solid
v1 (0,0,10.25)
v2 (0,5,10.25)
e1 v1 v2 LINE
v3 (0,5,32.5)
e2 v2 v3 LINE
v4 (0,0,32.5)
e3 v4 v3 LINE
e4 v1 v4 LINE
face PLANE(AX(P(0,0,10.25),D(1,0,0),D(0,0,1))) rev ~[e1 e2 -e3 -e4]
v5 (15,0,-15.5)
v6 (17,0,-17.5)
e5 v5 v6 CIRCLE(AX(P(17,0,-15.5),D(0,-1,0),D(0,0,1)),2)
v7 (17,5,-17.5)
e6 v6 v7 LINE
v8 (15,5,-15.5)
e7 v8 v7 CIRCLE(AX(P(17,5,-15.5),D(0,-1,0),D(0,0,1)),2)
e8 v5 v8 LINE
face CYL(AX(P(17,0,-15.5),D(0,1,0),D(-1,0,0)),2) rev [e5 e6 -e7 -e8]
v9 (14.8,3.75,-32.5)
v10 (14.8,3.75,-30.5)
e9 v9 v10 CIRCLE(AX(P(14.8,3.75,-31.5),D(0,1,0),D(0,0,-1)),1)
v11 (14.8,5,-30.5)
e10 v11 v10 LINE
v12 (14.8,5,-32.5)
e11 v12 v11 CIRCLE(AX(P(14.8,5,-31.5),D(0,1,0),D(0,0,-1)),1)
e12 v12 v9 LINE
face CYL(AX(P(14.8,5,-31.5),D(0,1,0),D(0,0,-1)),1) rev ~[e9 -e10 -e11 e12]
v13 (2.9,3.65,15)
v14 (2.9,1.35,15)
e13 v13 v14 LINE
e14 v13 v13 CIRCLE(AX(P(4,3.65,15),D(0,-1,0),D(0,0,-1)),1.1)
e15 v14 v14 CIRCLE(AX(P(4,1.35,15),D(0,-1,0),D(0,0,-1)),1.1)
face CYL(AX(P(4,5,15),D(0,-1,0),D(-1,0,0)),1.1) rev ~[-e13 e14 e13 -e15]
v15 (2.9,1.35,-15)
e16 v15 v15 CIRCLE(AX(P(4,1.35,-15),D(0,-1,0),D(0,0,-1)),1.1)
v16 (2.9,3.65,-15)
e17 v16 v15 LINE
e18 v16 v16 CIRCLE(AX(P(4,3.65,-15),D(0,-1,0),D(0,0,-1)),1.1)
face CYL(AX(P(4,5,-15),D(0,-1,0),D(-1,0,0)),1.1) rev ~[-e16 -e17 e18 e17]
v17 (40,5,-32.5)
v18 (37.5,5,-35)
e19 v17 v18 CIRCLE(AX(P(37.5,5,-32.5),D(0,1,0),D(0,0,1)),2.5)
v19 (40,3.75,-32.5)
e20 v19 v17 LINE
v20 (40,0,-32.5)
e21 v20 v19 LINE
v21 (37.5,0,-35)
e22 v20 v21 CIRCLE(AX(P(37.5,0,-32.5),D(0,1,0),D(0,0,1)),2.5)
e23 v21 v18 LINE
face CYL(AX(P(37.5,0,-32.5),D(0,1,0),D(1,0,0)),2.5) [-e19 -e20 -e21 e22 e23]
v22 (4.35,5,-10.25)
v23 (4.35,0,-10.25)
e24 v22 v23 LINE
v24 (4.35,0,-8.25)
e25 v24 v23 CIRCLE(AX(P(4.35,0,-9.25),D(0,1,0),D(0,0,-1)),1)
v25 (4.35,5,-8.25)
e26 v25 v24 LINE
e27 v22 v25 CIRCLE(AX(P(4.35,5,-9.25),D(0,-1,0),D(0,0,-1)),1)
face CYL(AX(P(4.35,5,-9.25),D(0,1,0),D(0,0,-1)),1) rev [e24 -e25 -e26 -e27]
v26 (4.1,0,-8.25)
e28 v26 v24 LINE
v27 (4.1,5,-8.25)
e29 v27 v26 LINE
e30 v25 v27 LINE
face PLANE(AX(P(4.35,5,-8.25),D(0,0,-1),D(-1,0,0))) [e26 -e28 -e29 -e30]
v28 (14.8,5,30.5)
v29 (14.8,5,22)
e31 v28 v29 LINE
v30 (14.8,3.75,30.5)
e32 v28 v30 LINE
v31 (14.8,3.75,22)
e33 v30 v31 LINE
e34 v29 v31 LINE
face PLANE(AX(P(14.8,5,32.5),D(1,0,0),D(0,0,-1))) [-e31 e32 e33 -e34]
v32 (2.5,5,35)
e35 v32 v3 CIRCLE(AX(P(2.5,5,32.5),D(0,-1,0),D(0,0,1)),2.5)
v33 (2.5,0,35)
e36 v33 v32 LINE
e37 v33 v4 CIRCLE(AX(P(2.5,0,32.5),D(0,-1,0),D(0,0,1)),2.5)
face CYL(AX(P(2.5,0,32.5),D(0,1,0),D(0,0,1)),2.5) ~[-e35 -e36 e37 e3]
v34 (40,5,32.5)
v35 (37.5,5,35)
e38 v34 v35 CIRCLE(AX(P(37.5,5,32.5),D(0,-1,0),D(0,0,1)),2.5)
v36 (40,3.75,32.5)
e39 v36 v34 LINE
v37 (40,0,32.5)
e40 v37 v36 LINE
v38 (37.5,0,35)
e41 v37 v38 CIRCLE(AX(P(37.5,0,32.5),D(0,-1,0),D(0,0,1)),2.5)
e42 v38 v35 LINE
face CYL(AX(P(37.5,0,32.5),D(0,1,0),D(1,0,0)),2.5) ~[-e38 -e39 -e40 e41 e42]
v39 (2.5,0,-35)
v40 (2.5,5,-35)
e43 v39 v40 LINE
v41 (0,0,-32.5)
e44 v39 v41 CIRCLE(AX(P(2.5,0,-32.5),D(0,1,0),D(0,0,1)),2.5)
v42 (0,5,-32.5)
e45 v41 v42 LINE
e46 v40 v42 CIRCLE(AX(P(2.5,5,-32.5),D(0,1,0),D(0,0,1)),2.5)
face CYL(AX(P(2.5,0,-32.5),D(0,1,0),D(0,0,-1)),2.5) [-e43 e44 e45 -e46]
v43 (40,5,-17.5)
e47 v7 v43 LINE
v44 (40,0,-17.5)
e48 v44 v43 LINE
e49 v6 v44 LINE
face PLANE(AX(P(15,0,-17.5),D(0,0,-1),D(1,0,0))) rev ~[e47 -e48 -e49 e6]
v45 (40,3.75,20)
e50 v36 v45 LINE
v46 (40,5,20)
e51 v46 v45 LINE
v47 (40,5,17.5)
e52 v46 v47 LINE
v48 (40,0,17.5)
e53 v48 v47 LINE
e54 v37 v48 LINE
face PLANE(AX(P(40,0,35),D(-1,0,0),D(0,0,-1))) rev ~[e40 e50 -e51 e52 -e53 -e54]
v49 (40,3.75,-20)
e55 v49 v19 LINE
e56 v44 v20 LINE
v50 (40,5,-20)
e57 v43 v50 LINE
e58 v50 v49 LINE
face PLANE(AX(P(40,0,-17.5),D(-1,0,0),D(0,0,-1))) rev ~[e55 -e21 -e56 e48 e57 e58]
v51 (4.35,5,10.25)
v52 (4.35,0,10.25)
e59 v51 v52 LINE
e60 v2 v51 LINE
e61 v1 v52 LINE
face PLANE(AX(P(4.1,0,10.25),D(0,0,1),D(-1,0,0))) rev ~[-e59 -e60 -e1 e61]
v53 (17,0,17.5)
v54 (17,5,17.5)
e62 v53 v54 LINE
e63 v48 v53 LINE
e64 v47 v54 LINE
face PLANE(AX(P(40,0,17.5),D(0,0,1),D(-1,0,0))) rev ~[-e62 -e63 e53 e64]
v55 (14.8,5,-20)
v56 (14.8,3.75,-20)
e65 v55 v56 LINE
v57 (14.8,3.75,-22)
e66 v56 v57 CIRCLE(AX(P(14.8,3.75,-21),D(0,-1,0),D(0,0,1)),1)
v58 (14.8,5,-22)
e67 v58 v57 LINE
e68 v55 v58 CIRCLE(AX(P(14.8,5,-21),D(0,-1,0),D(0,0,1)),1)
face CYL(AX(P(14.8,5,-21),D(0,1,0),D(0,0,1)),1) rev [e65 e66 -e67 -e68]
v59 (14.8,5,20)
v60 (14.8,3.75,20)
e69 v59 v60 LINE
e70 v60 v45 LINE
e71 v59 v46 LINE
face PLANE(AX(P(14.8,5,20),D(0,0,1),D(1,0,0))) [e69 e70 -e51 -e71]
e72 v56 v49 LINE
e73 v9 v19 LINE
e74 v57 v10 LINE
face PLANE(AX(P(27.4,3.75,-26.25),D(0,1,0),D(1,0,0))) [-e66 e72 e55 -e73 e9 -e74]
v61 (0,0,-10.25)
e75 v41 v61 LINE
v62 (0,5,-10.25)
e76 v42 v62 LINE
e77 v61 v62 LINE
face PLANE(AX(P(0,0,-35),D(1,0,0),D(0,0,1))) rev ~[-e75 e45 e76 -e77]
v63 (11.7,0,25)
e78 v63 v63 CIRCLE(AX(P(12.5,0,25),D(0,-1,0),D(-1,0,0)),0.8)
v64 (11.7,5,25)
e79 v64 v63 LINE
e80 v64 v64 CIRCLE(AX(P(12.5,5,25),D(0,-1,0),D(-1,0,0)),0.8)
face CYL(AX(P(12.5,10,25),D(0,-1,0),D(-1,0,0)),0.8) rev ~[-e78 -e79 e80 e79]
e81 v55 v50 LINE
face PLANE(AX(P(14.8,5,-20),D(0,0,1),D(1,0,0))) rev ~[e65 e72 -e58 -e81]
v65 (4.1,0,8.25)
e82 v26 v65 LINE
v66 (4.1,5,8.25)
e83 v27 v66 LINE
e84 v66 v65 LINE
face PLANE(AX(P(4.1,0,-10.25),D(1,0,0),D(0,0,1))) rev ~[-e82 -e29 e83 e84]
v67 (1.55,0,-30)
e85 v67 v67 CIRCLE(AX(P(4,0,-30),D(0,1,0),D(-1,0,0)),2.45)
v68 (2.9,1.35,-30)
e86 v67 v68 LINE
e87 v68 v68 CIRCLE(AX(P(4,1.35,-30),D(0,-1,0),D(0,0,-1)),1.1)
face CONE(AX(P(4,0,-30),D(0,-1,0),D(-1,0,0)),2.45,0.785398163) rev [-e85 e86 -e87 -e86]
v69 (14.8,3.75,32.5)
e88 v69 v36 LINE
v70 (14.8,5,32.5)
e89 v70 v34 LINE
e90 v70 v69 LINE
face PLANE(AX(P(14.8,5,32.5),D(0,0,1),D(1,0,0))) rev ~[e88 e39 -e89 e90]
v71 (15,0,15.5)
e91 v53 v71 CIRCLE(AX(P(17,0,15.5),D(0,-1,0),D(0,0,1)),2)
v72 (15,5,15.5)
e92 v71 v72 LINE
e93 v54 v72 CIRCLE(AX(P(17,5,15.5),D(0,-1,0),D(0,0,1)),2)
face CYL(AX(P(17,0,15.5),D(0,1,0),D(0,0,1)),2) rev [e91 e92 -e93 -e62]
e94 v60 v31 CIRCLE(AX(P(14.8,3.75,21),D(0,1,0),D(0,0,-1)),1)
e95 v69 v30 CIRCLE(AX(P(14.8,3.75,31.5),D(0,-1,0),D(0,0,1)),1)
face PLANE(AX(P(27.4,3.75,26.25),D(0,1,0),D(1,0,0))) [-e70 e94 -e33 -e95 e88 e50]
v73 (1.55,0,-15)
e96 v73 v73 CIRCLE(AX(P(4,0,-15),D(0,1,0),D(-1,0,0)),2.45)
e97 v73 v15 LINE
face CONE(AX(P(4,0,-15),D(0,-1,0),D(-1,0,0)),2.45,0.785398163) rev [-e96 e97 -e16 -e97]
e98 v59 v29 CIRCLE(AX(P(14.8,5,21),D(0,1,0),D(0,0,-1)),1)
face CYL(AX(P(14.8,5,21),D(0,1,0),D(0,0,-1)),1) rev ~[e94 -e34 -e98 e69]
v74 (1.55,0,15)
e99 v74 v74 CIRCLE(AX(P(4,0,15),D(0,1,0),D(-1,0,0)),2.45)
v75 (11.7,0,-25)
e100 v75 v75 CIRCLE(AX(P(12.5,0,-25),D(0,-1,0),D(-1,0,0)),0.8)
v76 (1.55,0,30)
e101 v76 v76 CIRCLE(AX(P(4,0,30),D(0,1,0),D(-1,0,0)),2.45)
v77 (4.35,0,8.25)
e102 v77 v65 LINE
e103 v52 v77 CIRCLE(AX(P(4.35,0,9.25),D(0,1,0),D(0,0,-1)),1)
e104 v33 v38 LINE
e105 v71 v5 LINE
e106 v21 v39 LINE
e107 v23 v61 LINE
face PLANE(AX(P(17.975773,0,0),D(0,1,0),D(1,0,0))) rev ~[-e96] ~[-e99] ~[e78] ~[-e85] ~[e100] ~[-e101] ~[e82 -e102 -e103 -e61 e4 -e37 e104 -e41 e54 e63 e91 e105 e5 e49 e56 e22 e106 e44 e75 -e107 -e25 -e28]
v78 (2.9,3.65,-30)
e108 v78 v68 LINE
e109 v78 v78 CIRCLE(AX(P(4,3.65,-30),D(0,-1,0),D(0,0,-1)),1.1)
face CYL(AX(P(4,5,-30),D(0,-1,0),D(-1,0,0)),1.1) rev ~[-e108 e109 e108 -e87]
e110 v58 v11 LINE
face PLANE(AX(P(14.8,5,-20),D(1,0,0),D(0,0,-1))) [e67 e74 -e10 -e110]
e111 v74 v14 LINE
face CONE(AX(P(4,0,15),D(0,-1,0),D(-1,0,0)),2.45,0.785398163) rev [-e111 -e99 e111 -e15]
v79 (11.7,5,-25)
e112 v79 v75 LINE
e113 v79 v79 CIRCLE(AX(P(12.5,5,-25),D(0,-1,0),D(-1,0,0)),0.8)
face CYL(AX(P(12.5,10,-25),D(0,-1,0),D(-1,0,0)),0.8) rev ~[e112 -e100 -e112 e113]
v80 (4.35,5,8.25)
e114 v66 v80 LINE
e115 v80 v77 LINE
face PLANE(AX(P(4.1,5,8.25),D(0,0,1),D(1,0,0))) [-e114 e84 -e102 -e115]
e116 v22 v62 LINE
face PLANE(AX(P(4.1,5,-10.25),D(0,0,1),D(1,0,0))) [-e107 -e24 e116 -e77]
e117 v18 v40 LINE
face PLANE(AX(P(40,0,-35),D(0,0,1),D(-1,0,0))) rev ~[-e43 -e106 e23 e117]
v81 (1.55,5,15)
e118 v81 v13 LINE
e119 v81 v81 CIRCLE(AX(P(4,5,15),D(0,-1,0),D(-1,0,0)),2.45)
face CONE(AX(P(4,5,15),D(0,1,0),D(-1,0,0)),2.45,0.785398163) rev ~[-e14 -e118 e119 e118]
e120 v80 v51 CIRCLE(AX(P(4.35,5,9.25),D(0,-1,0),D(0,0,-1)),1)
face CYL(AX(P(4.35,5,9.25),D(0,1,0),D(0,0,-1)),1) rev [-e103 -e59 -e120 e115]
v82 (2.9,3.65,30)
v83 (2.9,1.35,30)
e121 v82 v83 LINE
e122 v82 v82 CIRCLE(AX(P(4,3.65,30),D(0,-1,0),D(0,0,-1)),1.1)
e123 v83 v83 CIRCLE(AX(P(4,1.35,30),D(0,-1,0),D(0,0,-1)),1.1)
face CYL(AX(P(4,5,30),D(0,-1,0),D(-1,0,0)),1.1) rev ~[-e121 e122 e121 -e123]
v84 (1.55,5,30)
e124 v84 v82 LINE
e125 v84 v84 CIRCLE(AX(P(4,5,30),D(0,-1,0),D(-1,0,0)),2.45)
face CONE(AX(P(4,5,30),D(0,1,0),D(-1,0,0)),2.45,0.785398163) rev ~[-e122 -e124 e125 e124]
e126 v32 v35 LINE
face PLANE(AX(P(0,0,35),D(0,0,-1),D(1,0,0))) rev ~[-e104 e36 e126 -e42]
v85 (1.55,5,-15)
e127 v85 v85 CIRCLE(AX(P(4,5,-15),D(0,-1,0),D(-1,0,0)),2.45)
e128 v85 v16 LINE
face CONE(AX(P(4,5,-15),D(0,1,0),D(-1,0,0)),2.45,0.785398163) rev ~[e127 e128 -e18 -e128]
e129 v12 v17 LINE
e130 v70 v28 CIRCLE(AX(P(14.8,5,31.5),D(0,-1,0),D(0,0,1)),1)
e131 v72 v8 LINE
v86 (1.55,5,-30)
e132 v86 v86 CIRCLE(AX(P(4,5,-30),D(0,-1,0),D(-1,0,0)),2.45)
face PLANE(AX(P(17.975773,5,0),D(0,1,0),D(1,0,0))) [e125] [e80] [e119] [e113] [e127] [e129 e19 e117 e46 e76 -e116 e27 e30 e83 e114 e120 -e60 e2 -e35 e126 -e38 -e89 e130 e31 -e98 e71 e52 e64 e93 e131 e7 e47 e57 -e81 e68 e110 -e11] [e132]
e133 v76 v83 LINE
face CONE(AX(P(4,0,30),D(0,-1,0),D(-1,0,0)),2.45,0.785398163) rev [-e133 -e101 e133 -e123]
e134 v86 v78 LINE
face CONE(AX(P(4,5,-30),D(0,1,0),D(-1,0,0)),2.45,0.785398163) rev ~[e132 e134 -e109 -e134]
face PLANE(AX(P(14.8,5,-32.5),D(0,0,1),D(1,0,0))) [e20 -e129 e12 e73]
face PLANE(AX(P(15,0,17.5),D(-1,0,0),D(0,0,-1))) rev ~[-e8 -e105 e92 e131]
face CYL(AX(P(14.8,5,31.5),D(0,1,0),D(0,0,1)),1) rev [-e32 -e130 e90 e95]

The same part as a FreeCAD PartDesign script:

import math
import FreeCAD as App
import Part
import Sketcher

V = App.Vector


def edges_at(feature, points):
    """Names of the edges that pass closest to the given points."""
    edges = feature.Shape.Edges
    near = lambda p: min(range(len(edges)), key=lambda i: edges[i].distToShape(Part.Vertex(*p))[0])
    return sorted({f"Edge{near(p) + 1}" for p in points})


def add_polygon(sketch, points):
    """Adds a closed chain of lines whose ends are joined by coincident constraints."""
    first, n = sketch.GeometryCount, len(points)
    for a, b in zip(points, points[1:] + points[:1]):
        sketch.addGeometry(Part.LineSegment(App.Vector(*a, 0), App.Vector(*b, 0)), False)
    for i in range(n):
        sketch.addConstraint(Sketcher.Constraint("Coincident", first + i, 2, first + (i + 1) % n, 1))

doc = App.newDocument("Part")
body = doc.addObject("PartDesign::Body", "Body")

# Sketch on XZ plane
sketch1 = body.newObject("Sketcher::SketchObject", "Sketch")
sketch1.AttachmentSupport = (doc.getObject("XZ_Plane"), [""])
sketch1.MapMode = "FlatFace"
add_polygon(sketch1, [(0, -35), (0, -10.25), (4.1, -10.25), (4.1, 10.25), (0, 10.25), (0, 35), (40, 35), (40, 17.5), (15, 17.5), (15, -17.5), (40, -17.5), (40, -35)])  # lines 0-11
sketch1.addConstraint([
    Sketcher.Constraint("Vertical", 0),
    Sketcher.Constraint("Horizontal", 1),
    Sketcher.Constraint("Vertical", 2),
    Sketcher.Constraint("Horizontal", 3),
    Sketcher.Constraint("Vertical", 4),
    Sketcher.Constraint("Horizontal", 5),
    Sketcher.Constraint("Vertical", 6),
    Sketcher.Constraint("Horizontal", 7),
    Sketcher.Constraint("Vertical", 8),
    Sketcher.Constraint("Horizontal", 9),
    Sketcher.Constraint("Vertical", 10),
    Sketcher.Constraint("Horizontal", 11),
    Sketcher.Constraint("Symmetric", 0, 2, 3, 2, -1, 1),
    Sketcher.Constraint("Symmetric", 6, 2, 9, 2, -1),
    Sketcher.Constraint("Symmetric", 4, 2, 11, 2, -1),
    Sketcher.Constraint("DistanceX", 5, 1, 5, 2, 40.0),
    Sketcher.Constraint("DistanceX", 7, 2, 7, 1, 25.0),
    Sketcher.Constraint("DistanceY", 8, 2, 8, 1, 35.0),
    Sketcher.Constraint("DistanceX", 1, 1, 1, 2, 4.1),
    Sketcher.Constraint("DistanceY", 2, 1, 2, 2, 20.5),
    Sketcher.Constraint("DistanceY", 6, 2, 6, 1, 17.5),
])
pad1 = body.newObject("PartDesign::Pad", "Pad")
pad1.Profile = sketch1
pad1.Length = 5
pad1.Reversed = True
doc.recompute()

fillet = body.newObject("PartDesign::Fillet", "Fillet")
fillet.Base = (pad1, edges_at(pad1, [(15, 2.5, -17.5), (15, 2.5, 17.5)]))
fillet.Radius = 2
doc.recompute()

fillet2 = body.newObject("PartDesign::Fillet", "Fillet001")
fillet2.Base = (fillet, edges_at(fillet, [
    (0, 2.5, -35),
    (40, 2.5, -35),
    (40, 2.5, 35),
    (0, 2.5, 35),
]))
fillet2.Radius = 2.5

# Sketch on XZ plane
sketch2 = body.newObject("Sketcher::SketchObject", "Sketch001")
sketch2.AttachmentSupport = (doc.getObject("XZ_Plane"), [""])
sketch2.MapMode = "FlatFace"
sketch2.AttachmentOffset = App.Placement(V(0, 0, -5), App.Rotation())
sketch2.addGeometry([
    Part.LineSegment(V(4.35, -10.25, 0), V(4.1, -10.25, 0)),
    Part.LineSegment(V(4.1, -10.25, 0), V(4.1, -8.25, 0)),
    Part.LineSegment(V(4.1, -8.25, 0), V(4.35, -8.25, 0)),
    Part.ArcOfCircle(Part.Circle(V(4.35, -9.25, 0), V(0, 0, 1), 1), math.radians(-90), math.radians(90)),
], False)
sketch2.addConstraint([
    Sketcher.Constraint("Coincident", 0, 2, 1, 1),
    Sketcher.Constraint("Coincident", 1, 2, 2, 1),
    Sketcher.Constraint("Tangent", 2, 2, 3, 2),
    Sketcher.Constraint("Tangent", 3, 1, 0, 1),
    Sketcher.Constraint("Horizontal", 0),
    Sketcher.Constraint("Vertical", 1),
    Sketcher.Constraint("Horizontal", 2),
    Sketcher.Constraint("Radius", 3, 1.0),
    Sketcher.Constraint("DistanceX", 0, 2, 0, 1, 0.25),
    Sketcher.Constraint("DistanceX", -1, 1, 0, 2, 4.1),
    Sketcher.Constraint("DistanceY", 3, 3, -1, 1, 9.25),
])
pocket1 = body.newObject("PartDesign::Pocket", "Pocket")
pocket1.Profile = sketch2
pocket1.Type = "UpToFirst"
pocket1.Reversed = True

# Sketch on XZ plane
sketch3 = body.newObject("Sketcher::SketchObject", "Sketch002")
sketch3.AttachmentSupport = (doc.getObject("XZ_Plane"), [""])
sketch3.MapMode = "FlatFace"
sketch3.AttachmentOffset = App.Placement(V(0, 0, -5), App.Rotation())
sketch3.addGeometry([
    Part.LineSegment(V(4.1, 8.25, 0), V(4.1, 10.25, 0)),
    Part.LineSegment(V(4.1, 10.25, 0), V(4.35, 10.25, 0)),
    Part.ArcOfCircle(Part.Circle(V(4.35, 9.25, 0), V(0, 0, 1), 1), math.radians(-90), math.radians(90)),
    Part.LineSegment(V(4.35, 8.25, 0), V(4.1, 8.25, 0)),
], False)
sketch3.addConstraint([
    Sketcher.Constraint("Coincident", 0, 2, 1, 1),
    Sketcher.Constraint("Tangent", 1, 2, 2, 2),
    Sketcher.Constraint("Tangent", 2, 1, 3, 1),
    Sketcher.Constraint("Coincident", 3, 2, 0, 1),
    Sketcher.Constraint("Vertical", 0),
    Sketcher.Constraint("Horizontal", 1),
    Sketcher.Constraint("Horizontal", 3),
    Sketcher.Constraint("Radius", 2, 1.0),
    Sketcher.Constraint("DistanceX", 1, 1, 1, 2, 0.25),
    Sketcher.Constraint("DistanceX", -1, 1, 0, 2, 4.1),
    Sketcher.Constraint("DistanceY", -1, 1, 2, 3, 9.25),
])
pocket2 = body.newObject("PartDesign::Pocket", "Pocket001")
pocket2.Profile = sketch3
pocket2.Type = "UpToFirst"
pocket2.Reversed = True

# Sketch on XZ plane
sketch4 = body.newObject("Sketcher::SketchObject", "Sketch003")
sketch4.AttachmentSupport = (doc.getObject("XZ_Plane"), [""])
sketch4.MapMode = "FlatFace"
sketch4.AttachmentOffset = App.Placement(V(0, 0, -5), App.Rotation())
sketch4.addGeometry([
    Part.Circle(V(4, -30, 0), V(0, 0, 1), 1.1),
    Part.Circle(V(4, -15, 0), V(0, 0, 1), 1.1),
    Part.Circle(V(4, 15, 0), V(0, 0, 1), 1.1),
    Part.Circle(V(4, 30, 0), V(0, 0, 1), 1.1),
], False)
sketch4.addConstraint([
    Sketcher.Constraint("Equal", 0, 1),
    Sketcher.Constraint("Equal", 1, 2),
    Sketcher.Constraint("Equal", 2, 3),
    Sketcher.Constraint("Symmetric", 1, 3, 2, 3, -1),
    Sketcher.Constraint("Symmetric", 0, 3, 3, 3, -1),
    Sketcher.Constraint("Vertical", 0, 3, 1, 3),
    Sketcher.Constraint("Diameter", 0, 2.2),
    Sketcher.Constraint("DistanceX", -1, 1, 0, 3, 4.0),
    Sketcher.Constraint("DistanceY", 0, 3, -1, 1, 30.0),
    Sketcher.Constraint("DistanceY", 1, 3, -1, 1, 15.0),
])
doc.recompute()
hole = body.newObject("PartDesign::Hole", "Hole")
hole.Profile = sketch4
hole.ThreadType = "None"
hole.Diameter = 2.2
hole.DepthType = "Dimension"
hole.Depth = 5
hole.DrillPoint = "Flat"
hole.HoleCutType = "Countersink"
hole.HoleCutDiameter = 4.9
hole.HoleCutCountersinkAngle = 90
hole.Reversed = True

# Sketch on XZ plane
sketch5 = body.newObject("Sketcher::SketchObject", "Sketch004")
sketch5.AttachmentSupport = (doc.getObject("XZ_Plane"), [""])
sketch5.MapMode = "FlatFace"
sketch5.AttachmentOffset = App.Placement(V(0, 0, -5), App.Rotation())
sketch5.addGeometry([
    Part.Circle(V(12.5, 25, 0), V(0, 0, 1), 0.8),
    Part.Circle(V(12.5, -25, 0), V(0, 0, 1), 0.8),
], False)
sketch5.addConstraint([
    Sketcher.Constraint("Equal", 0, 1),
    Sketcher.Constraint("Symmetric", 0, 3, 1, 3, -1),
    Sketcher.Constraint("Diameter", 0, 1.6),
    Sketcher.Constraint("DistanceY", -1, 1, 0, 3, 25.0),
    Sketcher.Constraint("DistanceX", -1, 1, 0, 3, 12.5),
])
doc.recompute()
hole2 = body.newObject("PartDesign::Hole", "Hole001")
hole2.Profile = sketch5
hole2.ThreadType = "None"
hole2.Diameter = 1.6
hole2.DepthType = "Dimension"
hole2.Depth = 5
hole2.DrillPoint = "Flat"
hole2.Reversed = True

# Sketch on XZ plane
sketch6 = body.newObject("Sketcher::SketchObject", "Sketch005")
sketch6.AttachmentSupport = (doc.getObject("XZ_Plane"), [""])
sketch6.MapMode = "FlatFace"
sketch6.AttachmentOffset = App.Placement(V(0, 0, -5), App.Rotation())
add_polygon(sketch6, [(14.8, -32.5), (14.8, -20), (40, -20), (40, -32.5)])  # lines 0-3
add_polygon(sketch6, [(14.8, 20), (14.8, 32.5), (40, 32.5), (40, 20)])  # lines 4-7
sketch6.addConstraint([
    Sketcher.Constraint("Vertical", 0),
    Sketcher.Constraint("Horizontal", 1),
    Sketcher.Constraint("Vertical", 2),
    Sketcher.Constraint("Horizontal", 3),
    Sketcher.Constraint("Vertical", 4),
    Sketcher.Constraint("Horizontal", 5),
    Sketcher.Constraint("Vertical", 6),
    Sketcher.Constraint("Horizontal", 7),
    Sketcher.Constraint("Symmetric", 3, 2, 4, 2, -1),
    Sketcher.Constraint("Symmetric", 1, 2, 6, 2, -1),
    Sketcher.Constraint("DistanceX", 1, 1, 1, 2, 25.2),
    Sketcher.Constraint("DistanceY", 0, 1, 0, 2, 12.5),
    Sketcher.Constraint("DistanceY", 0, 2, -1, 1, 20.0),
    Sketcher.Constraint("DistanceX", -1, 1, 1, 2, 40.0),
])
pocket3 = body.newObject("PartDesign::Pocket", "Pocket002")
pocket3.Profile = sketch6
pocket3.Length = 1.25
pocket3.Reversed = True

# Sketch on XZ plane
sketch7 = body.newObject("Sketcher::SketchObject", "Sketch006")
sketch7.AttachmentSupport = (doc.getObject("XZ_Plane"), [""])
sketch7.MapMode = "FlatFace"
sketch7.AttachmentOffset = App.Placement(V(0, 0, -5), App.Rotation())
sketch7.addGeometry([
    Part.LineSegment(V(14.8, -20, 0), V(14.8, -22, 0)),
    Part.ArcOfCircle(Part.Circle(V(14.8, -21, 0), V(0, 0, 1), 1), math.radians(90), math.radians(270)),
    Part.LineSegment(V(14.8, -30.5, 0), V(14.8, -32.5, 0)),
    Part.ArcOfCircle(Part.Circle(V(14.8, -31.5, 0), V(0, 0, 1), 1), math.radians(90), math.radians(270)),
], False)
sketch7.addConstraint([
    Sketcher.Constraint("Coincident", 0, 1, 1, 1),
    Sketcher.Constraint("Coincident", 1, 2, 0, 2),
    Sketcher.Constraint("Coincident", 2, 1, 3, 1),
    Sketcher.Constraint("Coincident", 3, 2, 2, 2),
    Sketcher.Constraint("Vertical", 0),
    Sketcher.Constraint("Vertical", 2),
    Sketcher.Constraint("Equal", 1, 3),
    Sketcher.Constraint("Vertical", 1, 3, 3, 3),
    Sketcher.Constraint("Vertical", 3, 3, 0, 1),
    Sketcher.Constraint("Vertical", 1, 2, 2, 1),
    Sketcher.Constraint("Radius", 1, 1.0),
    Sketcher.Constraint("DistanceY", 1, 3, -1, 1, 21.0),
    Sketcher.Constraint("DistanceX", -1, 1, 1, 3, 14.8),
    Sketcher.Constraint("DistanceY", 3, 3, -1, 1, 31.5),
])
pocket4 = body.newObject("PartDesign::Pocket", "Pocket003")
pocket4.Profile = sketch7
pocket4.Length = 1.25
pocket4.Reversed = True
doc.recompute()

datumplane = body.newObject("PartDesign::Plane", "DatumPlane")
datumplane.AttachmentSupport = (doc.getObject("XZ_Plane"), [""])
datumplane.MapMode = "FlatFace"
datumplane.AttachmentOffset = App.Placement(V(0, 0, -2.5), App.Rotation())
mirrored = body.newObject("PartDesign::Mirrored", "Mirrored")
mirrored.Originals = [hole]
mirrored.MirrorPlane = (datumplane, [""])
body.Tip = mirrored
doc.recompute()

mirrored2 = body.newObject("PartDesign::Mirrored", "Mirrored001")
mirrored2.Originals = [pocket4]
mirrored2.MirrorPlane = (doc.getObject("XY_Plane"), [""])
body.Tip = mirrored2

doc.recompute()
